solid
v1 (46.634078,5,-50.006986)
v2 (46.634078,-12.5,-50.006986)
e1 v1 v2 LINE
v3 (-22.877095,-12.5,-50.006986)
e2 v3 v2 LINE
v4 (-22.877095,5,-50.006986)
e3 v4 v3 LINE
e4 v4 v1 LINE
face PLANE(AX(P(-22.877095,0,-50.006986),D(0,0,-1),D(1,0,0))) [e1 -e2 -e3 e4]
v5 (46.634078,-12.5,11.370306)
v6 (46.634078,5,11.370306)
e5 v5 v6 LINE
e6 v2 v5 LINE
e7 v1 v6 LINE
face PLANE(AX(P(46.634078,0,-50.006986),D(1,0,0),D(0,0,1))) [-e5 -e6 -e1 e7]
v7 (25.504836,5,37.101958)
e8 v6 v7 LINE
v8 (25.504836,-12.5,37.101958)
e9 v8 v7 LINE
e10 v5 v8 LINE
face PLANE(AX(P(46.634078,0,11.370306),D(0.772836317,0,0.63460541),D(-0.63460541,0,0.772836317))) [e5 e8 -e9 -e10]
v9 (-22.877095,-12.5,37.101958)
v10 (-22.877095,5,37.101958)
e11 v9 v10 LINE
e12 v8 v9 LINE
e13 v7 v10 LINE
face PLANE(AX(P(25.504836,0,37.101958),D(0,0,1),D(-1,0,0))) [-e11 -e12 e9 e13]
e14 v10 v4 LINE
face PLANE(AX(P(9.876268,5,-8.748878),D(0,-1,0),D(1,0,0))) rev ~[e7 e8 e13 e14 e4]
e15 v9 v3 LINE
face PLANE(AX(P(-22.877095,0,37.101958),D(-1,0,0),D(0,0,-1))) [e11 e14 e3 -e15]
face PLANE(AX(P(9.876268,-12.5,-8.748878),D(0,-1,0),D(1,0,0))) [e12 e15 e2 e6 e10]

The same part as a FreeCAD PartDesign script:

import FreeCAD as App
import Part
import Sketcher


def add_polygon(sketch, points):
    """Adds a closed chain of lines whose ends are joined by coincident constraints."""
    first, n = sketch.GeometryCount, len(points)
    for a, b in zip(points, points[1:] + points[:1]):
        sketch.addGeometry(Part.LineSegment(App.Vector(*a, 0), App.Vector(*b, 0)), False)
    for i in range(n):
        sketch.addConstraint(Sketcher.Constraint("Coincident", first + i, 2, first + (i + 1) % n, 1))

doc = App.newDocument("Part")
body = doc.addObject("PartDesign::Body", "Body")

# Sketch on XZ plane
sketch1 = body.newObject("Sketcher::SketchObject", "Sketch")
sketch1.AttachmentSupport = (doc.getObject("XZ_Plane"), [""])
sketch1.MapMode = "FlatFace"
add_polygon(sketch1, [(-23, 37), (-23, -50), (47, -50), (47, 11), (26, 37)])  # lines 0-4
sketch1.addConstraint([
    Sketcher.Constraint("Vertical", 0),
    Sketcher.Constraint("Horizontal", 1),
    Sketcher.Constraint("Vertical", 2),
    Sketcher.Constraint("Horizontal", 4),
    Sketcher.Constraint("DistanceX", 4, 2, 4, 1, 48.381931),
    Sketcher.Constraint("DistanceY", 2, 1, 2, 2, 61.377292),
    Sketcher.Constraint("DistanceX", 1, 1, 1, 2, 69.511173),
    Sketcher.Constraint("DistanceY", 0, 2, 0, 1, 87.108944),
    Sketcher.Constraint("DistanceX", -1, 1, 1, 2, 46.634078),
    Sketcher.Constraint("DistanceY", -1, 1, 3, 2, 37.101958),
])
pad1 = body.newObject("PartDesign::Pad", "Pad")
pad1.Profile = sketch1
pad1.Length = 10
pad1.Midplane = True

# Sketch on XZ plane
sketch2 = body.newObject("Sketcher::SketchObject", "Sketch001")
sketch2.AttachmentSupport = (doc.getObject("XZ_Plane"), [""])
sketch2.MapMode = "FlatFace"
sketch2.AttachmentOffset = App.Placement(App.Vector(0, 0, 5), App.Rotation())
add_polygon(sketch2, [(26, 37), (-23, 37), (-23, -50), (47, -50), (47, 11)])  # lines 0-4
sketch2.addConstraint([
    Sketcher.Constraint("Horizontal", 0),
    Sketcher.Constraint("Vertical", 1),
    Sketcher.Constraint("Horizontal", 2),
    Sketcher.Constraint("Vertical", 3),
    Sketcher.Constraint("DistanceX", 0, 2, 0, 1, 48.381931),
    Sketcher.Constraint("DistanceY", 3, 1, 3, 2, 61.377292),
    Sketcher.Constraint("DistanceX", 2, 1, 2, 2, 69.511173),
    Sketcher.Constraint("DistanceY", 1, 2, 1, 1, 87.108944),
    Sketcher.Constraint("DistanceY", -1, 1, 0, 2, 37.101958),
    Sketcher.Constraint("DistanceX", -1, 1, 2, 2, 46.634078),
])
pad2 = body.newObject("PartDesign::Pad", "Pad001")
pad2.Profile = sketch2
pad2.Length = 15
pad2.Midplane = True

doc.recompute()
